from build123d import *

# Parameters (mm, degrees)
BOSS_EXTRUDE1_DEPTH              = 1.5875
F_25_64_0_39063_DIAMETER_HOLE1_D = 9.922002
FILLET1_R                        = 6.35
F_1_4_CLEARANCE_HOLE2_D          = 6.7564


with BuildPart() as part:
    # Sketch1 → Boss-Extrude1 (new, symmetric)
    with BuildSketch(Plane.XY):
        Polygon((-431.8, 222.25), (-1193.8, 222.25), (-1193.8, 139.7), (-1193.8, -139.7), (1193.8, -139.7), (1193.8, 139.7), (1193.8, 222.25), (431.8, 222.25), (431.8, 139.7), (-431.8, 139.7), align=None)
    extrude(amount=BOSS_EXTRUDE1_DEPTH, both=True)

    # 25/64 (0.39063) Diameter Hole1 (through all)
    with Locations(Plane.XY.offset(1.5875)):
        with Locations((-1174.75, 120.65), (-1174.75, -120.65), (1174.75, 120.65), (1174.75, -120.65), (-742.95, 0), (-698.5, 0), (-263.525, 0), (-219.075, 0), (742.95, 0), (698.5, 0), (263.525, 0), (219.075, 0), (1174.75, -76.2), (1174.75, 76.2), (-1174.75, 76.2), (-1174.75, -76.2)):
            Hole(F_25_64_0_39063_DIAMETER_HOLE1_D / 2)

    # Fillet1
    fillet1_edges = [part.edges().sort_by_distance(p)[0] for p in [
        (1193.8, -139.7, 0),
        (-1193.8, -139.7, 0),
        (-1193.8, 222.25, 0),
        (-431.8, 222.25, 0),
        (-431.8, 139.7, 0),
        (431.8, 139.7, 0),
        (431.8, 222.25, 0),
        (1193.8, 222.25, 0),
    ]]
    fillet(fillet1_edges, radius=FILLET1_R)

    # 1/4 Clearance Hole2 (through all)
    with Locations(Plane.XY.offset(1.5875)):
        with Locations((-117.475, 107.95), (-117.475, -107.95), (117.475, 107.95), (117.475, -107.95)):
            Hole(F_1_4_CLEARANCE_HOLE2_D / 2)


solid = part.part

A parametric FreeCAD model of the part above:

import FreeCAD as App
import Part
import Sketcher
from FreeCAD import Vector
Q = App.Units.Quantity


def edges_at(feature, points):
    """Names of the edges that pass closest to the given points."""
    edges = feature.Shape.Edges
    near = lambda p: min(range(len(edges)), key=lambda i: edges[i].distToShape(Part.Vertex(*p))[0])
    return sorted({f"Edge{near(p) + 1}" for p in points})


def add_polygon(sketch, points):
    """Adds a closed chain of lines whose ends are joined by coincident constraints."""
    first, n = sketch.GeometryCount, len(points)
    for a, b in zip(points, points[1:] + points[:1]):
        sketch.addGeometry(Part.LineSegment(App.Vector(*a, 0), App.Vector(*b, 0)), False)
    for i in range(n):
        sketch.addConstraint(Sketcher.Constraint("Coincident", first + i, 2, first + (i + 1) % n, 1))

doc = App.newDocument("Part")
params = doc.addObject("Spreadsheet::Sheet", "Params")
for row, (alias, value) in enumerate([
    ("sketch1_width", "30 in"),
    ("sketch1_width2", "94 in"),
    ("sketch1_height", "14.25 in"),
    ("pad1_length", "0.125 in"),
    ("hole_diameter", "9.922002 mm"),
    ("fillet_radius", "0.25 in"),
    ("sketch3_diameter", "0.266 in"),
    ("hole2_diameter", "0.266 in"),
], start=1):
    params.set(f"A{row}", alias)
    params.set(f"B{row}", "=" + value)
    params.setAlias(f"B{row}", alias)

body = doc.addObject("PartDesign::Body", "Body")

# Sketch on XY plane
sketch1 = doc.addObject("Sketcher::SketchObject", "Sketch")
body.addObject(sketch1)
sketch1.AttachmentSupport = (doc.XY_Plane, [""])
sketch1.MapMode = "FlatFace"
add_polygon(sketch1, [(-431.8, 222.25), (-1193.8, 222.25), (-1193.8, -139.7), (1193.8, -139.7), (1193.8, 222.25), (431.8, 222.25), (431.8, 139.7), (-431.8, 139.7)])  # lines 0-7
sketch1.addConstraint([
    Sketcher.Constraint("Horizontal", 0),
    Sketcher.Constraint("Vertical", 1),
    Sketcher.Constraint("Horizontal", 2),
    Sketcher.Constraint("Vertical", 3),
    Sketcher.Constraint("Horizontal", 4),
    Sketcher.Constraint("Vertical", 5),
    Sketcher.Constraint("Horizontal", 6),
    Sketcher.Constraint("Vertical", 7),
    Sketcher.Constraint("Symmetric", 0, 2, 3, 2, -2),
    Sketcher.Constraint("Equal", 0, 4),
    Sketcher.Constraint("DistanceX", 0, 2, 0, 1, Q("30 in")),
    Sketcher.Constraint("DistanceX", 2, 1, 2, 2, Q("94 in")),
    Sketcher.Constraint("DistanceY", 2, 2, 5, 2, Q("11 in")),
    Sketcher.Constraint("DistanceY", 1, 2, 1, 1, Q("14.25 in")),
    Sketcher.Constraint("DistanceY", 1, 2, -1, 1, Q("5.5 in")),
])
sketch1.setExpression("Constraints[18]", "Params.sketch1_width")
sketch1.setExpression("Constraints[19]", "Params.sketch1_width2")
sketch1.setExpression("Constraints[21]", "Params.sketch1_height")
pad1 = doc.addObject("PartDesign::Pad", "Pad")
body.addObject(pad1)
pad1.Profile = sketch1
pad1.setExpression("Length", "Params.pad1_length")
pad1.Midplane = True

# Sketch on XY plane
sketch2 = doc.addObject("Sketcher::SketchObject", "Sketch001")
body.addObject(sketch2)
sketch2.AttachmentSupport = (doc.XY_Plane, [""])
sketch2.MapMode = "FlatFace"
sketch2.AttachmentOffset = App.Placement(Vector(0, 0, 0.0625 * 25.4), App.Rotation())
sketch2.addGeometry([
    Part.Circle(Vector(-1174.75, 120.65, 0), Vector(0, 0, 1), 4.961001),  # 0
    Part.Circle(Vector(-1174.75, -120.65, 0), Vector(0, 0, 1), 4.961001),  # 1
    Part.Circle(Vector(1174.75, 120.65, 0), Vector(0, 0, 1), 4.961001),  # 2
    Part.Circle(Vector(1174.75, -120.65, 0), Vector(0, 0, 1), 4.961001),  # 3
    Part.Circle(Vector(-742.95, 0, 0), Vector(0, 0, 1), 4.961001),  # 4
    Part.Circle(Vector(-698.5, 0, 0), Vector(0, 0, 1), 4.961001),  # 5
    Part.Circle(Vector(-263.525, 0, 0), Vector(0, 0, 1), 4.961001),  # 6
    Part.Circle(Vector(-219.075, 0, 0), Vector(0, 0, 1), 4.961001),  # 7
    Part.Circle(Vector(742.95, 0, 0), Vector(0, 0, 1), 4.961001),  # 8
    Part.Circle(Vector(698.5, 0, 0), Vector(0, 0, 1), 4.961001),  # 9
    Part.Circle(Vector(263.525, 0, 0), Vector(0, 0, 1), 4.961001),  # 10
    Part.Circle(Vector(219.075, 0, 0), Vector(0, 0, 1), 4.961001),  # 11
    Part.Circle(Vector(1174.75, -76.2, 0), Vector(0, 0, 1), 4.961001),  # 12
    Part.Circle(Vector(1174.75, 76.2, 0), Vector(0, 0, 1), 4.961001),  # 13
    Part.Circle(Vector(-1174.75, 76.2, 0), Vector(0, 0, 1), 4.961001),  # 14
    Part.Circle(Vector(-1174.75, -76.2, 0), Vector(0, 0, 1), 4.961001),  # 15
], False)
sketch2.addConstraint([
    Sketcher.Constraint("Equal", 0, 1),
    Sketcher.Constraint("Equal", 1, 2),
    Sketcher.Constraint("Equal", 2, 3),
    Sketcher.Constraint("Equal", 3, 4),
    Sketcher.Constraint("Equal", 4, 5),
    Sketcher.Constraint("Equal", 5, 6),
    Sketcher.Constraint("Equal", 6, 7),
    Sketcher.Constraint("Equal", 7, 8),
    Sketcher.Constraint("Equal", 8, 9),
    Sketcher.Constraint("Equal", 9, 10),
    Sketcher.Constraint("Equal", 10, 11),
    Sketcher.Constraint("Equal", 11, 12),
    Sketcher.Constraint("Equal", 12, 13),
    Sketcher.Constraint("Equal", 13, 14),
    Sketcher.Constraint("Equal", 14, 15),
    Sketcher.Constraint("Symmetric", 1, 3, 2, 3, -1, 1),
    Sketcher.Constraint("Symmetric", 0, 3, 3, 3, -1, 1),
    Sketcher.Constraint("Symmetric", 4, 3, 8, 3, -1, 1),
    Sketcher.Constraint("Symmetric", 5, 3, 9, 3, -1, 1),
    Sketcher.Constraint("Symmetric", 6, 3, 10, 3, -1, 1),
    Sketcher.Constraint("Symmetric", 7, 3, 11, 3, -1, 1),
    Sketcher.Constraint("Symmetric", 12, 3, 14, 3, -1, 1),
    Sketcher.Constraint("Symmetric", 13, 3, 15, 3, -1, 1),
    Sketcher.Constraint("Symmetric", 0, 3, 2, 3, -2),
    Sketcher.Constraint("Symmetric", 13, 3, 14, 3, -2),
    Sketcher.Constraint("PointOnObject", 4, 3, -1),
    Sketcher.Constraint("PointOnObject", 5, 3, -1),
    Sketcher.Constraint("PointOnObject", 6, 3, -1),
    Sketcher.Constraint("PointOnObject", 7, 3, -1),
    Sketcher.Constraint("Vertical", 3, 3, 12, 3),
    Sketcher.Constraint("DistanceY", 12, 3, -1, 1, Q("3 in")),
    Sketcher.Constraint("DistanceX", 0, 3, 4, 3, Q("17 in")),
    Sketcher.Constraint("DistanceX", 7, 3, 10, 3, Q("19 in")),
    Sketcher.Constraint("DistanceX", 5, 3, -1, 1, Q("27.5 in")),
    Sketcher.Constraint("DistanceY", 1, 3, 0, 3, Q("9.5 in")),
    Sketcher.Constraint("DistanceX", 0, 3, 2, 3, Q("92.5 in")),
    Sketcher.Constraint("DistanceX", 6, 3, 7, 3, Q("1.75 in")),
    Sketcher.Constraint("Diameter", 0, Q("9.922002 mm")),
])
doc.recompute()
hole = doc.addObject("PartDesign::Hole", "Hole")
body.addObject(hole)
hole.Profile = sketch2
hole.ThreadType = "None"
hole.setExpression("Diameter", "Params.hole_diameter")
hole.DepthType = "ThroughAll"
doc.recompute()

fillet = doc.addObject("PartDesign::Fillet", "Fillet")
body.addObject(fillet)
fillet.Base = (hole, edges_at(hole, [
    (1193.8, -139.7, 0),
    (-1193.8, -139.7, 0),
    (-1193.8, 222.25, 0),
    (-431.8, 222.25, 0),
    (-431.8, 139.7, 0),
    (431.8, 139.7, 0),
    (431.8, 222.25, 0),
    (1193.8, 222.25, 0),
]))
fillet.setExpression("Radius", "Params.fillet_radius")

# Sketch on XY plane
sketch3 = doc.addObject("Sketcher::SketchObject", "Sketch002")
body.addObject(sketch3)
sketch3.AttachmentSupport = (doc.XY_Plane, [""])
sketch3.MapMode = "FlatFace"
sketch3.AttachmentOffset = App.Placement(Vector(0, 0, 0.0625 * 25.4), App.Rotation())
sketch3.addGeometry([
    Part.Circle(Vector(-117.475, 107.95, 0), Vector(0, 0, 1), 3.3782),
    Part.Circle(Vector(-117.475, -107.95, 0), Vector(0, 0, 1), 3.3782),
    Part.Circle(Vector(117.475, 107.95, 0), Vector(0, 0, 1), 3.3782),
    Part.Circle(Vector(117.475, -107.95, 0), Vector(0, 0, 1), 3.3782),
], False)
sketch3.addConstraint([
    Sketcher.Constraint("Equal", 0, 1),
    Sketcher.Constraint("Equal", 1, 2),
    Sketcher.Constraint("Equal", 2, 3),
    Sketcher.Constraint("Symmetric", 1, 3, 2, 3, -1, 1),
    Sketcher.Constraint("Symmetric", 0, 3, 3, 3, -1, 1),
    Sketcher.Constraint("Symmetric", 0, 3, 2, 3, -2),
    Sketcher.Constraint("Diameter", 0, Q("0.266 in")),
    Sketcher.Constraint("DistanceY", 1, 3, 0, 3, Q("8.5 in")),
    Sketcher.Constraint("DistanceX", 0, 3, 2, 3, Q("9.25 in")),
])
sketch3.setExpression("Constraints[6]", "Params.sketch3_diameter")
doc.recompute()
hole2 = doc.addObject("PartDesign::Hole", "Hole001")
body.addObject(hole2)
hole2.Profile = sketch3
hole2.ThreadType = "None"
hole2.setExpression("Diameter", "Params.hole2_diameter")
hole2.DepthType = "ThroughAll"

doc.recompute()
